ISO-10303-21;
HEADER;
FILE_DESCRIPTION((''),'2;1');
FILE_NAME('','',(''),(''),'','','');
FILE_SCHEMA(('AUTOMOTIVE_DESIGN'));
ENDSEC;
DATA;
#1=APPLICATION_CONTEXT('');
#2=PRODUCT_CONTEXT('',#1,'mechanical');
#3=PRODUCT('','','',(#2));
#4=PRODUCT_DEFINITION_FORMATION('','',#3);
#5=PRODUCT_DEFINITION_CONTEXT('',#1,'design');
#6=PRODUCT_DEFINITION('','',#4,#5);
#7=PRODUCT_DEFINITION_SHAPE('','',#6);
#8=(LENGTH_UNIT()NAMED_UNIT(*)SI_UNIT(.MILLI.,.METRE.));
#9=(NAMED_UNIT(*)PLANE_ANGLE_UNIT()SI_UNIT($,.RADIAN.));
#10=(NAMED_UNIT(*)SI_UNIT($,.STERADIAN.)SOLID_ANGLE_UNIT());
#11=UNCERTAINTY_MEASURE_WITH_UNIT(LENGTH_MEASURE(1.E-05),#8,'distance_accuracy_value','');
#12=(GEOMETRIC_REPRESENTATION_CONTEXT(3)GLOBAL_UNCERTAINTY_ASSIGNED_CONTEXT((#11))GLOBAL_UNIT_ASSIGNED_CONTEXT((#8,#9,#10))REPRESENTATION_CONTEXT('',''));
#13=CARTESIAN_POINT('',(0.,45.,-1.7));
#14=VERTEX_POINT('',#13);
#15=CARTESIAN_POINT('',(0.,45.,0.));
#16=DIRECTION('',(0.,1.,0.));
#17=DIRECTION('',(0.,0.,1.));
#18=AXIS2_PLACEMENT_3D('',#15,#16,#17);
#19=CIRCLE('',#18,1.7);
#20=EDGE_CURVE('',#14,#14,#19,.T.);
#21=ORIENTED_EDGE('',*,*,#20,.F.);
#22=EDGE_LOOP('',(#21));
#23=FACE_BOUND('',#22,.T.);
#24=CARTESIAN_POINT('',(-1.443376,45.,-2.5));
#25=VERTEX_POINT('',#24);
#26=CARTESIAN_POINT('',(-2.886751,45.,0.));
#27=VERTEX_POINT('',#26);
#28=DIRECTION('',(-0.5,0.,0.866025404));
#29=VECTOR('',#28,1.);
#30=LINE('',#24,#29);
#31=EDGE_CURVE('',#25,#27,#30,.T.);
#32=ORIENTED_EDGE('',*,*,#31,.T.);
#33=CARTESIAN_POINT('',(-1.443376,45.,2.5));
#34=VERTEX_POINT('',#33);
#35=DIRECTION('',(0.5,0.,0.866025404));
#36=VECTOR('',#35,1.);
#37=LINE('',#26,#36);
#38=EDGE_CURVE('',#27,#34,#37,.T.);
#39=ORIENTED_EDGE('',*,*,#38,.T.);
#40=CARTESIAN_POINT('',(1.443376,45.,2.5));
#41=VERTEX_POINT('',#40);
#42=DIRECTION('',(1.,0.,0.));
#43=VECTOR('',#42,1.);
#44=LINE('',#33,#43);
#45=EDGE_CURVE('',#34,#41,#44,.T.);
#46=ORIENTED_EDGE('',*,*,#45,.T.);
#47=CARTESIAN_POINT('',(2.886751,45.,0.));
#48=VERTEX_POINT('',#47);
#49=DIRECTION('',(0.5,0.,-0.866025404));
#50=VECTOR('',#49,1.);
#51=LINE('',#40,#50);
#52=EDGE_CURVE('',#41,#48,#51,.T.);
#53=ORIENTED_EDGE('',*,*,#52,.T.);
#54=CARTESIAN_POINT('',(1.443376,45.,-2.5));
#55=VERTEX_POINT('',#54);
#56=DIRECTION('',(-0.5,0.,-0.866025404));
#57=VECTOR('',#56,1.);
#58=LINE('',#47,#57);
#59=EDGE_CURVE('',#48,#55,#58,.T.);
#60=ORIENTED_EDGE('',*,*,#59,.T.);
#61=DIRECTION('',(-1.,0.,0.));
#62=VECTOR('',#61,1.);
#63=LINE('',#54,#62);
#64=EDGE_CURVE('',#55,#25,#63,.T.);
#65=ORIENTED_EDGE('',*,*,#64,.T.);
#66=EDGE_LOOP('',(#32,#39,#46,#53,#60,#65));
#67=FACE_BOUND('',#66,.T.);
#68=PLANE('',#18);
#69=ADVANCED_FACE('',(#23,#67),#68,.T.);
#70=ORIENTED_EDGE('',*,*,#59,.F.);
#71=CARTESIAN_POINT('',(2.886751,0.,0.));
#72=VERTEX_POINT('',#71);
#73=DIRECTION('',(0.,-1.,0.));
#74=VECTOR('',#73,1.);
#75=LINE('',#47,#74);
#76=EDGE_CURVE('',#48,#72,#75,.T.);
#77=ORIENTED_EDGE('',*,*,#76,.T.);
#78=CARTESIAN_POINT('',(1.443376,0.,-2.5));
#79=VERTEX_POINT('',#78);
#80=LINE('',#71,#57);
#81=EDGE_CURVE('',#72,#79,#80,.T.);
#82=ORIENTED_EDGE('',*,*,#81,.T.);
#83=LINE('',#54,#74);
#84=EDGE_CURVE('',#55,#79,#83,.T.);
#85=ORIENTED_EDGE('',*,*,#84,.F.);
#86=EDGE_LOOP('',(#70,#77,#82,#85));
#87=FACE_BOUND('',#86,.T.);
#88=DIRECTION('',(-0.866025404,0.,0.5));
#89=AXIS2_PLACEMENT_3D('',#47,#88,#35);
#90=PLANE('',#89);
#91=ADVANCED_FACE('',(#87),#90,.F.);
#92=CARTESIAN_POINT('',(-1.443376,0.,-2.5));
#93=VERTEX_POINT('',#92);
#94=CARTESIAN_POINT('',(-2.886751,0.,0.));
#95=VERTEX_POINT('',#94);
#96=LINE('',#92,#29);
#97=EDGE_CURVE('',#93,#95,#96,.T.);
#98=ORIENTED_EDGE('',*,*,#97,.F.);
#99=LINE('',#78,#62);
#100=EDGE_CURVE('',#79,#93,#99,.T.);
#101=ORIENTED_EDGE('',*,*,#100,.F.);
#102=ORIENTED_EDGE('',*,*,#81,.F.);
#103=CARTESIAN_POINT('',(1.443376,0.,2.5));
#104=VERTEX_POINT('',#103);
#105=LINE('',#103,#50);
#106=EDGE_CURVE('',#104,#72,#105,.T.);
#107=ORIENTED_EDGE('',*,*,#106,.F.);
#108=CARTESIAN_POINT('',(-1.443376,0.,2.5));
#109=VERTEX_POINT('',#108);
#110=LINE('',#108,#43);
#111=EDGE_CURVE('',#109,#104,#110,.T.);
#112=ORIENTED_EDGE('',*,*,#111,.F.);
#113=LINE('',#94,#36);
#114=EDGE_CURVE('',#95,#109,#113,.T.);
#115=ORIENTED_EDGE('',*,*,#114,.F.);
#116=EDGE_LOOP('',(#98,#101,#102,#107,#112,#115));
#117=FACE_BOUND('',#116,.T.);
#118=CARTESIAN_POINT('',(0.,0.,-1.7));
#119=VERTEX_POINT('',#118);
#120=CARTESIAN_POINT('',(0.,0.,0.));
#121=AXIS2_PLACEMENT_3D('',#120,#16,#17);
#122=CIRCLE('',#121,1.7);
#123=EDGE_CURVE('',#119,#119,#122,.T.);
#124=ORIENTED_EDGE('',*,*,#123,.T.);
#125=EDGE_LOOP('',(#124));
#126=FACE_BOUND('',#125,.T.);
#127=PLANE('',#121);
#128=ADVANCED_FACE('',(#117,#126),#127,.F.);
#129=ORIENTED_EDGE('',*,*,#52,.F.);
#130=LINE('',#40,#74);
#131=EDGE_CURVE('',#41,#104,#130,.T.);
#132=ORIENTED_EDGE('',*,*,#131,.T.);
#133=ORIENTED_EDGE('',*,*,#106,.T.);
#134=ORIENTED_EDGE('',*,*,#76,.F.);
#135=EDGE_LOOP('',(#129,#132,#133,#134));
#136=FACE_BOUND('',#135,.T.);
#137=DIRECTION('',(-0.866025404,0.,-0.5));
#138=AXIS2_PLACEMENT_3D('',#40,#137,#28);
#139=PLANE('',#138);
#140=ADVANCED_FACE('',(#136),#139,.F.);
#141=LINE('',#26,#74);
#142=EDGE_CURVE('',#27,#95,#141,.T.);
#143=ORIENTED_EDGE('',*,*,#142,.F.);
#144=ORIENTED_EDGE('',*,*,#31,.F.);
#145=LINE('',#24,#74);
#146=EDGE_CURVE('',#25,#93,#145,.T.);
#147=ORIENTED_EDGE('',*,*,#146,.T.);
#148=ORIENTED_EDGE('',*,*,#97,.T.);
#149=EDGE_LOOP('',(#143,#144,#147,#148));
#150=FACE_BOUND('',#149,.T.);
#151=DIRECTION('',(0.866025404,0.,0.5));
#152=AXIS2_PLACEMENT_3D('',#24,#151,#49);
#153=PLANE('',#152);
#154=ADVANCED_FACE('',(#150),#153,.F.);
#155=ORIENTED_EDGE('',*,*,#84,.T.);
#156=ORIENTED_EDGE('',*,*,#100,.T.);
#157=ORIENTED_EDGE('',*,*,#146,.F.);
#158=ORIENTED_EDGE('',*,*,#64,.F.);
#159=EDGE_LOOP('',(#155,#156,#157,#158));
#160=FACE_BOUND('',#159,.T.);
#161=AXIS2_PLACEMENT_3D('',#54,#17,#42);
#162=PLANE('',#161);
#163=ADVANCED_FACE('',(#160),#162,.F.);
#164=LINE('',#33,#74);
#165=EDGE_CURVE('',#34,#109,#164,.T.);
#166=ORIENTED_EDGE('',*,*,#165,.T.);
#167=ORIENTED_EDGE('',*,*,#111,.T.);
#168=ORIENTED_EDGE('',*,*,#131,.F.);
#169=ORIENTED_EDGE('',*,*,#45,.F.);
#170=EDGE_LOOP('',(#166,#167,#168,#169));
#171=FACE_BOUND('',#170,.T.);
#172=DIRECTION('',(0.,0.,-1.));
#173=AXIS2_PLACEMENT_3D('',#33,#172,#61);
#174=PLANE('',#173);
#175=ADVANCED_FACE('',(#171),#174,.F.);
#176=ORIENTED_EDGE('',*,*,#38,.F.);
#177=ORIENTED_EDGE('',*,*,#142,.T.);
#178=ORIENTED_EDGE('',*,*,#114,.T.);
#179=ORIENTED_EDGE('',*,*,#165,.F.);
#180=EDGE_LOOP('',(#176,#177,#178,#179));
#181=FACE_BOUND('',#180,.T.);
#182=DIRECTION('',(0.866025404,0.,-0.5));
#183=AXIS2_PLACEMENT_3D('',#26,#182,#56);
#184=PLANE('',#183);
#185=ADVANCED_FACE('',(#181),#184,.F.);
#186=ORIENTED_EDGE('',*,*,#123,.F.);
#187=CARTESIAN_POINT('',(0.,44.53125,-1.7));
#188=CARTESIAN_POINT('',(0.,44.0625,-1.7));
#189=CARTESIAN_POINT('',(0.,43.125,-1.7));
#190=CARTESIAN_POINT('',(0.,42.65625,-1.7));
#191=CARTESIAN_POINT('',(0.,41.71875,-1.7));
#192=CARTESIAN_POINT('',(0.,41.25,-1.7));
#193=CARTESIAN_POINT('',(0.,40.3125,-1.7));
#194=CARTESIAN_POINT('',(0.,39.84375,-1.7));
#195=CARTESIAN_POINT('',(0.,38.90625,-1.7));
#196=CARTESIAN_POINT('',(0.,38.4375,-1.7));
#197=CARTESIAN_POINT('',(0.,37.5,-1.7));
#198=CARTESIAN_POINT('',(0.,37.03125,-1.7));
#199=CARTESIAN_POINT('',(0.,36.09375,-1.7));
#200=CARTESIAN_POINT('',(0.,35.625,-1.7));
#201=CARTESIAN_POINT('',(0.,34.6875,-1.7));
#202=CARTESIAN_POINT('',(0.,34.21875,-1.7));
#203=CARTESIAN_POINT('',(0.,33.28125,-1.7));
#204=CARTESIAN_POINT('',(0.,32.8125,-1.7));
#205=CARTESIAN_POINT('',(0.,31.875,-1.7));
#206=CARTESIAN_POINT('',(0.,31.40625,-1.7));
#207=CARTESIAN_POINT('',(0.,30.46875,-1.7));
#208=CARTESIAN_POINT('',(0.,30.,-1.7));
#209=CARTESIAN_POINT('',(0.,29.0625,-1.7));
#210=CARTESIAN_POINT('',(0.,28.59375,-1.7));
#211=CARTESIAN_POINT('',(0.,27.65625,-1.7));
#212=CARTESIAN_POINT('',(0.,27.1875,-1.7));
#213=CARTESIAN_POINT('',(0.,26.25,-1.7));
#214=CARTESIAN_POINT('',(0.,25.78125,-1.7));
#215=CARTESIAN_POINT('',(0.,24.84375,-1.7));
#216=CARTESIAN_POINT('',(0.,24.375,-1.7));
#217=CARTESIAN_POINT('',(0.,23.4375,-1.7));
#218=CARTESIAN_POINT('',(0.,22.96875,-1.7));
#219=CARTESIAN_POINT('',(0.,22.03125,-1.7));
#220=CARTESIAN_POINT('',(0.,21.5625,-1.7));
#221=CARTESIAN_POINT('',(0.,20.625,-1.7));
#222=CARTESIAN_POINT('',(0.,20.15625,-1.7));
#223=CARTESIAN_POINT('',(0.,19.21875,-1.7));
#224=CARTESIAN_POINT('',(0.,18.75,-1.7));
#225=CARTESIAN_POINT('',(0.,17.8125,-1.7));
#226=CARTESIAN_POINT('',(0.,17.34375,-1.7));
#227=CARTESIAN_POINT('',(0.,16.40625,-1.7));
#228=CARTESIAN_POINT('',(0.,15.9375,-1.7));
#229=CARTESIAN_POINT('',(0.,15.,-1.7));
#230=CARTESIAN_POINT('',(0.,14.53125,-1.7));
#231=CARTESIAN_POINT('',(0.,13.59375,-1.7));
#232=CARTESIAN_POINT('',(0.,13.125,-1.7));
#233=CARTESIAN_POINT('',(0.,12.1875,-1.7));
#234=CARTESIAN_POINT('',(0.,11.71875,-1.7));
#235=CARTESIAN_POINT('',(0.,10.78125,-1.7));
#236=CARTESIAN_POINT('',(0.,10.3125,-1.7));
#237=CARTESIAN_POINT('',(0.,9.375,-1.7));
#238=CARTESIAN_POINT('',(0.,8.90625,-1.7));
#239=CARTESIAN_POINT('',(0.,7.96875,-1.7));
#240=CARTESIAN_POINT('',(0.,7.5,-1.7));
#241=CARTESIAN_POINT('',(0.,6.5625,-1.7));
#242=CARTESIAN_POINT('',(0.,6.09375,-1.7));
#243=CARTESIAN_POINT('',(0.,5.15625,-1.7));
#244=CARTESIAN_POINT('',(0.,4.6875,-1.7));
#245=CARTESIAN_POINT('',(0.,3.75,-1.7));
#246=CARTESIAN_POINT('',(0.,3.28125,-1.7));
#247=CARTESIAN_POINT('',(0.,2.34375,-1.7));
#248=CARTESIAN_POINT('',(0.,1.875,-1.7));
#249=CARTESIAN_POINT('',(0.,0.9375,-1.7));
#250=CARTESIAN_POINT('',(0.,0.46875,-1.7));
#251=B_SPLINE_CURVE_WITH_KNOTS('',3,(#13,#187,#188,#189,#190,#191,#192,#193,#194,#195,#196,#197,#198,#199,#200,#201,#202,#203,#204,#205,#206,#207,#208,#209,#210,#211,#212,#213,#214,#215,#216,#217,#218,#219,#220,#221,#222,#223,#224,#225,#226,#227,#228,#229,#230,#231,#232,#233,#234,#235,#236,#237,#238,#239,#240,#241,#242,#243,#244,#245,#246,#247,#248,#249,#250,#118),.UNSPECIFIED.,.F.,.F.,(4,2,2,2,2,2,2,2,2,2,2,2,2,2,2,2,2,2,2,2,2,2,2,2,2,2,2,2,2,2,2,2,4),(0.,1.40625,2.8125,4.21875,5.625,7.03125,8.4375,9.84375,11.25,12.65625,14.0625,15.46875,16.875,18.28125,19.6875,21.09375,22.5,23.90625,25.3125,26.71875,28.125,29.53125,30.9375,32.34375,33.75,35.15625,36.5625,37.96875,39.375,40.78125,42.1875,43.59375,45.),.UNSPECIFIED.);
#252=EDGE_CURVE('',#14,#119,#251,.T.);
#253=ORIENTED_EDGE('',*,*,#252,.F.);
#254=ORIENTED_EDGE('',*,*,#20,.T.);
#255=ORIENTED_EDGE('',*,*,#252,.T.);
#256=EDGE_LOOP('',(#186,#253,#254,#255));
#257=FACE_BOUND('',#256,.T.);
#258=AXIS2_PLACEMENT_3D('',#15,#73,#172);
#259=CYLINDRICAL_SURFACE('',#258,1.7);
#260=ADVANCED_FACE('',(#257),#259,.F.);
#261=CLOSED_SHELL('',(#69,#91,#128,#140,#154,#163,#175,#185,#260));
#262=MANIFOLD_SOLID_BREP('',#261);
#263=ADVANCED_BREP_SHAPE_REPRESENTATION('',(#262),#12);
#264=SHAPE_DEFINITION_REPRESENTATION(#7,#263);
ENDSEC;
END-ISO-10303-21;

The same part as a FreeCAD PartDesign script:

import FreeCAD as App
import Part
import Sketcher
Q = App.Units.Quantity


def add_polygon(sketch, points):
    """Adds a closed chain of lines whose ends are joined by coincident constraints."""
    first, n = sketch.GeometryCount, len(points)
    for a, b in zip(points, points[1:] + points[:1]):
        sketch.addGeometry(Part.LineSegment(App.Vector(*a, 0), App.Vector(*b, 0)), False)
    for i in range(n):
        sketch.addConstraint(Sketcher.Constraint("Coincident", first + i, 2, first + (i + 1) % n, 1))

doc = App.newDocument("Part")
params = doc.addObject("Spreadsheet::Sheet", "Params")
for row, (alias, value) in enumerate([
    ("sketch1_diameter", "3.4 mm"),
    ("pad1_length", "45 mm"),
], start=1):
    params.set(f"A{row}", alias)
    params.set(f"B{row}", "=" + value)
    params.setAlias(f"B{row}", alias)

body = doc.addObject("PartDesign::Body", "Body")

sketch1 = body.newObject("Sketcher::SketchObject", "Sketch")
sketch1.AttachmentSupport = (doc.getObject("XZ_Plane"), [""])
sketch1.MapMode = "FlatFace"
add_polygon(sketch1, [(2.9, 0), (1.4, -2.5), (-1.4, -2.5), (-2.9, 0), (-1.4, 2.5), (1.4, 2.5)])
sketch1.addGeometry(Part.Circle(App.Vector(0, 0, 0), App.Vector(0, 0, 1), 1.7), False)
sketch1.addConstraint([
    Sketcher.Constraint("Horizontal", 1),
    Sketcher.Constraint("Horizontal", 4),
    Sketcher.Constraint("Coincident", 6, 3, -1, 1),
    Sketcher.Constraint("Symmetric", 0, 2, 3, 2, -1, 1),
    Sketcher.Constraint("Symmetric", 2, 2, 5, 2, -1, 1),
    Sketcher.Constraint("PointOnObject", 2, 2, -1),
    Sketcher.Constraint("Parallel", 2, 5),
    Sketcher.Constraint("Vertical", 1, 2, 3, 2),
    Sketcher.Constraint("Diameter", 6, Q("3.4 mm")),
    Sketcher.Constraint("Angle", 0, Q("-120 deg")),
    Sketcher.Constraint("DistanceY", 1, 2, 3, 2, Q("5 mm")),
    Sketcher.Constraint("DistanceX", 1, 2, 1, 1, Q("2.886751 mm")),
])
sketch1.setExpression("Constraints[14]", "Params.sketch1_diameter")
pad1 = body.newObject("PartDesign::Pad", "Pad")
pad1.Profile = sketch1
pad1.setExpression("Length", "Params.pad1_length")
pad1.Reversed = True

doc.recompute()
